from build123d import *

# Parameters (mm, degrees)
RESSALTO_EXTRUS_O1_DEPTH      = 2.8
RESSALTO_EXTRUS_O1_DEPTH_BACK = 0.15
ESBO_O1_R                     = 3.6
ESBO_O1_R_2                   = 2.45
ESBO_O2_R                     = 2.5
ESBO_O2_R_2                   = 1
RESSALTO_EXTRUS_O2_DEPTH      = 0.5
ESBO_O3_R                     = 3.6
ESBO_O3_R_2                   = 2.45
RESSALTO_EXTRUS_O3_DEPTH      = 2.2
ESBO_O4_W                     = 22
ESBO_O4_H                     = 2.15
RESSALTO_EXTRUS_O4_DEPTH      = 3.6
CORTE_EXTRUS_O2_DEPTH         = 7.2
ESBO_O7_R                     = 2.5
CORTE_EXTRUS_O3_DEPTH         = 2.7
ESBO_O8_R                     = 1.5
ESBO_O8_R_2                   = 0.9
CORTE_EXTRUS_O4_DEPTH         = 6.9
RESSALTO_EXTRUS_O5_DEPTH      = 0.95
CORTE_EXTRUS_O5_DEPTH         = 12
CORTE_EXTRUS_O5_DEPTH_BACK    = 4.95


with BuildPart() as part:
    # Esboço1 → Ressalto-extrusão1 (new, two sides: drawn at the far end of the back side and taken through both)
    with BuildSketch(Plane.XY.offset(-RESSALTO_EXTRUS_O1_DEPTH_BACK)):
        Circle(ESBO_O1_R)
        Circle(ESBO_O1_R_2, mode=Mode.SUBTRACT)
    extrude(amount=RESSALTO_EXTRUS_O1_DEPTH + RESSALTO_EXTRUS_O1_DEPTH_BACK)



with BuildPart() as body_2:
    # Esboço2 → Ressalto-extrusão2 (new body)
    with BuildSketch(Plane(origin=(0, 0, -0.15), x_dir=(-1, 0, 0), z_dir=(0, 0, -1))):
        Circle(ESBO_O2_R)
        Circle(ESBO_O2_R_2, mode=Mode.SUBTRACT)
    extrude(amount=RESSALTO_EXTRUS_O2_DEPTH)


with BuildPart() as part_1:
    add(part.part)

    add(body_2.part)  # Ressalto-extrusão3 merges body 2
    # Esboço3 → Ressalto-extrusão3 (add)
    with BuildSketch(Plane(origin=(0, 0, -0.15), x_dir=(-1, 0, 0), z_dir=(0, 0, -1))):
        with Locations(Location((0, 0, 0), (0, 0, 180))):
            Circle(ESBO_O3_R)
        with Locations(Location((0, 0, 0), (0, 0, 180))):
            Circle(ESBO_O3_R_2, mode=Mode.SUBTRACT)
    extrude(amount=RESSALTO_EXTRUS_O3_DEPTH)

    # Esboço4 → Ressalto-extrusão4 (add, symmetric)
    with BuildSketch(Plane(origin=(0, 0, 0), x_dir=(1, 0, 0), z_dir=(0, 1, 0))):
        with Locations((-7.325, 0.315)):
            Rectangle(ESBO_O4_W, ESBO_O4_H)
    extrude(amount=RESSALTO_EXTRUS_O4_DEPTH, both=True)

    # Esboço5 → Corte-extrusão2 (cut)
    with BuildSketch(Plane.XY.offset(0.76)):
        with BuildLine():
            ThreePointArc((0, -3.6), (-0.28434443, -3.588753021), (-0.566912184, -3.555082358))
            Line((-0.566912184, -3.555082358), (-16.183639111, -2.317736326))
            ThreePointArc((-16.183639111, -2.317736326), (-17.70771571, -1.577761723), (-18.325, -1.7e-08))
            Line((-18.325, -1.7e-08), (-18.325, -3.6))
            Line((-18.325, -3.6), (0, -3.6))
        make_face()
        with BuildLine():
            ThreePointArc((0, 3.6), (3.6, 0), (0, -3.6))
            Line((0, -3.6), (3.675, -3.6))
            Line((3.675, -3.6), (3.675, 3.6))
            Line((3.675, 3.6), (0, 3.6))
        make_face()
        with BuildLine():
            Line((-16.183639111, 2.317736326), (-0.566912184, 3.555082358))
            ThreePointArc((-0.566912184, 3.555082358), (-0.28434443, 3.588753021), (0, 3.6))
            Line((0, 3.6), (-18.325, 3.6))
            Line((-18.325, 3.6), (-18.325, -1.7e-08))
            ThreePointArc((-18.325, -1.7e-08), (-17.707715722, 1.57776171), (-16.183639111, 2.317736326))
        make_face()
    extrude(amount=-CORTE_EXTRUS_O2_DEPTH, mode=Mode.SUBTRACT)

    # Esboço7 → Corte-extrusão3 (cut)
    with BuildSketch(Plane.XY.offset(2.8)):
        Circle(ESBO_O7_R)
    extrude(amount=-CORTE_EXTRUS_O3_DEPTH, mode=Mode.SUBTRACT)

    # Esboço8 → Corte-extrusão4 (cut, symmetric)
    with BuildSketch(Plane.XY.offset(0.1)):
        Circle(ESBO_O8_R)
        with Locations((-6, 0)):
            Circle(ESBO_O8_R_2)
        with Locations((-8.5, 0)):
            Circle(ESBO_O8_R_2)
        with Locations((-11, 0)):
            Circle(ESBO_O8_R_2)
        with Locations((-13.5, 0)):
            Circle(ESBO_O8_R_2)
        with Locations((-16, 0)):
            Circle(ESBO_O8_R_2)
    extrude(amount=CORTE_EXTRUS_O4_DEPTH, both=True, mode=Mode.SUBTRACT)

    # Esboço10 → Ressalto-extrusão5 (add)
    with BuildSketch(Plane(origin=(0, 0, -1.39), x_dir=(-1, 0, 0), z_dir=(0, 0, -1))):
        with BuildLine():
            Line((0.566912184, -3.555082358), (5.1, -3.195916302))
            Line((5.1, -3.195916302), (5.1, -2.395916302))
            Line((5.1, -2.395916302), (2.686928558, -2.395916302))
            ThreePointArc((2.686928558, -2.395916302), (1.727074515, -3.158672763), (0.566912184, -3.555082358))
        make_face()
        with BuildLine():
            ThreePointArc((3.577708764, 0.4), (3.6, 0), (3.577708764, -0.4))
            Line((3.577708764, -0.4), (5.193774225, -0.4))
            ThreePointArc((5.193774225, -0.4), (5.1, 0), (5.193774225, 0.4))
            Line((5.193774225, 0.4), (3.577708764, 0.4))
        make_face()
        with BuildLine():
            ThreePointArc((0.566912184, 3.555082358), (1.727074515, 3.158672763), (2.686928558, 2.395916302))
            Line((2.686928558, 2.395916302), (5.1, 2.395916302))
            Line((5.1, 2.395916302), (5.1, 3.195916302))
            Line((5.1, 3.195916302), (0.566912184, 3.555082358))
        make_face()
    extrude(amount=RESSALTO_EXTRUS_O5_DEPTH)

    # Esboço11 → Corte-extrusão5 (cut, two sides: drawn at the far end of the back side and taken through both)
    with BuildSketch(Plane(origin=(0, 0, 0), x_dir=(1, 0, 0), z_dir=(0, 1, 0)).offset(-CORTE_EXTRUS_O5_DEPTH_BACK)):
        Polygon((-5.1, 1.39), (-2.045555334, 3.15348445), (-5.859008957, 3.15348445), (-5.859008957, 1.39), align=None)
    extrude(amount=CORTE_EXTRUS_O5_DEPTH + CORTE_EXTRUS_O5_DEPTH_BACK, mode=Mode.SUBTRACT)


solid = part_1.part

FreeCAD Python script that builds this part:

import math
import FreeCAD as App
import Part
import Sketcher

V = App.Vector
Q = App.Units.Quantity

doc = App.newDocument("Part")
params = doc.addObject("Spreadsheet::Sheet", "Params")
for row, (alias, value) in enumerate([
    ("sketch1_diameter", "7.2 mm"),
    ("sketch1_diameter2", "4.9 mm"),
    ("pad1_length", "2.8 mm"),
    ("pad1_length2", "0.15 mm"),
    ("sketch2_diameter", "5 mm"),
    ("sketch2_diameter2", "2 mm"),
    ("pad2_length", "0.5 mm"),
    ("sketch3_diameter", "7.2 mm"),
    ("sketch3_diameter2", "4.9 mm"),
    ("pad3_length", "2.2 mm"),
    ("sketch4_width", "22 mm"),
    ("sketch4_height", "2.15 mm"),
    ("pad4_length", "7.2 mm"),
    ("sketch5_radius", "3.6 mm"),
    ("pocket1_length", "7.2 mm"),
    ("sketch6_diameter", "5 mm"),
    ("pocket2_length", "2.7 mm"),
    ("sketch7_diameter", "3 mm"),
    ("sketch7_diameter2", "1.8 mm"),
    ("pocket3_length", "13.8 mm"),
    ("sketch8_radius", "3.6 mm"),
    ("sketch8_radius2", "0.9 mm"),
    ("sketch8_height", "0.8 mm"),
    ("pad5_length", "0.95 mm"),
], start=1):
    params.set(f"A{row}", alias)
    params.set(f"B{row}", "=" + value)
    params.setAlias(f"B{row}", alias)

body = doc.addObject("PartDesign::Body", "Body")

# Sketch on XY plane
sketch1 = body.newObject("Sketcher::SketchObject", "Sketch")
sketch1.AttachmentSupport = (doc.getObject("XY_Plane"), [""])
sketch1.MapMode = "FlatFace"
sketch1.addGeometry(Part.Circle(V(0, 0, 0), V(0, 0, 1), 3.6), False)
sketch1.addGeometry(Part.Circle(V(0, 0, 0), V(0, 0, 1), 2.45), False)
sketch1.addConstraint(Sketcher.Constraint("Coincident", 0, 3, -1, 1))
sketch1.addConstraint(Sketcher.Constraint("Coincident", 1, 3, -1, 1))
sketch1.addConstraint(Sketcher.Constraint("Diameter", 0, Q("7.2 mm")))
sketch1.addConstraint(Sketcher.Constraint("Diameter", 1, Q("4.9 mm")))
sketch1.setExpression("Constraints[2]", "Params.sketch1_diameter")
sketch1.setExpression("Constraints[3]", "Params.sketch1_diameter2")
pad1 = body.newObject("PartDesign::Pad", "Pad")
pad1.Profile = sketch1
pad1.Type = "TwoLengths"
pad1.setExpression("Length", "Params.pad1_length")
pad1.setExpression("Length2", "Params.pad1_length2")
body2 = doc.addObject("PartDesign::Body", "Body001")

# Sketch on XY plane
sketch2 = body2.newObject("Sketcher::SketchObject", "Sketch001")
sketch2.AttachmentSupport = (doc.getObject("XY_Plane001"), [""])
sketch2.MapMode = "FlatFace"
sketch2.AttachmentOffset = App.Placement(V(0, 0, -0.15), App.Rotation())
sketch2.addGeometry(Part.Circle(V(0, 0, 0), V(0, 0, 1), 2.5), False)
sketch2.addGeometry(Part.Circle(V(0, 0, 0), V(0, 0, 1), 1), False)
sketch2.addConstraint(Sketcher.Constraint("Coincident", 0, 3, -1, 1))
sketch2.addConstraint(Sketcher.Constraint("Coincident", 1, 3, -1, 1))
sketch2.addConstraint(Sketcher.Constraint("Diameter", 0, Q("5 mm")))
sketch2.addConstraint(Sketcher.Constraint("Diameter", 1, Q("2 mm")))
sketch2.setExpression("Constraints[2]", "Params.sketch2_diameter")
sketch2.setExpression("Constraints[3]", "Params.sketch2_diameter2")
pad2 = body2.newObject("PartDesign::Pad", "Pad001")
pad2.Profile = sketch2
pad2.setExpression("Length", "Params.pad2_length")
pad2.Reversed = True
doc.recompute()

boolean = body.newObject("PartDesign::Boolean", "Boolean")
boolean.Type = "Fuse"
boolean.addObjects([body2])

# Sketch on XY plane
sketch3 = body.newObject("Sketcher::SketchObject", "Sketch002")
sketch3.AttachmentSupport = (doc.getObject("XY_Plane"), [""])
sketch3.MapMode = "FlatFace"
sketch3.AttachmentOffset = App.Placement(V(0, 0, -0.15), App.Rotation())
sketch3.addGeometry(Part.Circle(V(0, 0, 0), V(0, 0, 1), 3.6), False)
sketch3.addGeometry(Part.Circle(V(0, 0, 0), V(0, 0, 1), 2.45), False)
sketch3.addConstraint(Sketcher.Constraint("Coincident", 0, 3, -1, 1))
sketch3.addConstraint(Sketcher.Constraint("Coincident", 1, 3, -1, 1))
sketch3.addConstraint(Sketcher.Constraint("Diameter", 0, Q("7.2 mm")))
sketch3.addConstraint(Sketcher.Constraint("Diameter", 1, Q("4.9 mm")))
sketch3.setExpression("Constraints[2]", "Params.sketch3_diameter")
sketch3.setExpression("Constraints[3]", "Params.sketch3_diameter2")
pad3 = body.newObject("PartDesign::Pad", "Pad002")
pad3.Profile = sketch3
pad3.setExpression("Length", "Params.pad3_length")
pad3.Reversed = True

# Sketch on XZ plane
sketch4 = body.newObject("Sketcher::SketchObject", "Sketch003")
sketch4.AttachmentSupport = (doc.getObject("XZ_Plane"), [""])
sketch4.MapMode = "FlatFace"
sketch4.addGeometry(Part.LineSegment(V(-18.325, -1.39, 0), V(-18.325, 0.76, 0)), False)
sketch4.addGeometry(Part.LineSegment(V(-18.325, 0.76, 0), V(3.675, 0.76, 0)), False)
sketch4.addGeometry(Part.LineSegment(V(3.675, 0.76, 0), V(3.675, -1.39, 0)), False)
sketch4.addGeometry(Part.LineSegment(V(3.675, -1.39, 0), V(-18.325, -1.39, 0)), False)
sketch4.addConstraint(Sketcher.Constraint("Coincident", 0, 2, 1, 1))
sketch4.addConstraint(Sketcher.Constraint("Coincident", 1, 2, 2, 1))
sketch4.addConstraint(Sketcher.Constraint("Coincident", 2, 2, 3, 1))
sketch4.addConstraint(Sketcher.Constraint("Coincident", 3, 2, 0, 1))
sketch4.addConstraint(Sketcher.Constraint("Vertical", 0))
sketch4.addConstraint(Sketcher.Constraint("Horizontal", 1))
sketch4.addConstraint(Sketcher.Constraint("Vertical", 2))
sketch4.addConstraint(Sketcher.Constraint("Horizontal", 3))
sketch4.addConstraint(Sketcher.Constraint("DistanceX", 1, 1, 1, 2, Q("22 mm")))
sketch4.addConstraint(Sketcher.Constraint("DistanceY", 0, 1, 0, 2, Q("2.15 mm")))
sketch4.addConstraint(Sketcher.Constraint("DistanceY", -1, 1, 0, 2, Q("0.76 mm")))
sketch4.addConstraint(Sketcher.Constraint("DistanceX", 0, 2, -1, 1, Q("18.325 mm")))
sketch4.setExpression("Constraints[8]", "Params.sketch4_width")
sketch4.setExpression("Constraints[9]", "Params.sketch4_height")
pad4 = body.newObject("PartDesign::Pad", "Pad003")
pad4.Profile = sketch4
pad4.setExpression("Length", "Params.pad4_length")
pad4.Midplane = True

# Sketch on XY plane
sketch5 = body.newObject("Sketcher::SketchObject", "Sketch004")
sketch5.AttachmentSupport = (doc.getObject("XY_Plane"), [""])
sketch5.MapMode = "FlatFace"
sketch5.AttachmentOffset = App.Placement(V(0, 0, 0.76), App.Rotation())
sketch5.addGeometry(Part.ArcOfCircle(Part.Circle(V(0, 0, 0), V(0, 0, 1), 3.6), math.radians(-99.060402), math.radians(-90)), False)
sketch5.addGeometry(Part.LineSegment(V(-0.566912, -3.555082, 0), V(-16.183639, -2.317736, 0)), False)
sketch5.addGeometry(Part.ArcOfCircle(Part.Circle(V(-16, 0, 0), V(0, 0, 1), 2.325), math.radians(-180), math.radians(-94.530201)), False)
sketch5.addGeometry(Part.LineSegment(V(-18.325, 0, 0), V(-18.325, -3.6, 0)), False)
sketch5.addGeometry(Part.LineSegment(V(-18.325, -3.6, 0), V(0, -3.6, 0)), False)
sketch5.addGeometry(Part.ArcOfCircle(Part.Circle(V(0, 0, 0), V(0, 0, 1), 3.6), math.radians(-90), math.radians(90)), False)
sketch5.addGeometry(Part.LineSegment(V(0, -3.6, 0), V(3.675, -3.6, 0)), False)
sketch5.addGeometry(Part.LineSegment(V(3.675, -3.6, 0), V(3.675, 3.6, 0)), False)
sketch5.addGeometry(Part.LineSegment(V(3.675, 3.6, 0), V(0, 3.6, 0)), False)
sketch5.addGeometry(Part.LineSegment(V(-16.183639, 2.317736, 0), V(-0.566912, 3.555082, 0)), False)
sketch5.addGeometry(Part.ArcOfCircle(Part.Circle(V(0, 0, 0), V(0, 0, 1), 3.6), math.radians(90), math.radians(99.060402)), False)
sketch5.addGeometry(Part.LineSegment(V(0, 3.6, 0), V(-18.325, 3.6, 0)), False)
sketch5.addGeometry(Part.LineSegment(V(-18.325, 3.6, 0), V(-18.325, 0, 0)), False)
sketch5.addGeometry(Part.ArcOfCircle(Part.Circle(V(-16, 0, 0), V(0, 0, 1), 2.325), math.radians(94.530201), math.radians(180)), False)
sketch5.addConstraint(Sketcher.Constraint("Coincident", 0, 1, 1, 1))
sketch5.addConstraint(Sketcher.Constraint("Tangent", 1, 2, 2, 2))
sketch5.addConstraint(Sketcher.Constraint("Tangent", 2, 1, 3, 1))
sketch5.addConstraint(Sketcher.Constraint("Coincident", 3, 2, 4, 1))
sketch5.addConstraint(Sketcher.Constraint("Tangent", 4, 2, 0, 2))
sketch5.addConstraint(Sketcher.Constraint("Tangent", 5, 1, 6, 1))
sketch5.addConstraint(Sketcher.Constraint("Coincident", 6, 2, 7, 1))
sketch5.addConstraint(Sketcher.Constraint("Coincident", 7, 2, 8, 1))
sketch5.addConstraint(Sketcher.Constraint("Tangent", 8, 2, 5, 2))
sketch5.addConstraint(Sketcher.Constraint("Coincident", 9, 2, 10, 2))
sketch5.addConstraint(Sketcher.Constraint("Tangent", 10, 1, 11, 1))
sketch5.addConstraint(Sketcher.Constraint("Coincident", 11, 2, 12, 1))
sketch5.addConstraint(Sketcher.Constraint("Tangent", 12, 2, 13, 2))
sketch5.addConstraint(Sketcher.Constraint("Tangent", 13, 1, 9, 1))
sketch5.addConstraint(Sketcher.Constraint("Vertical", 3))
sketch5.addConstraint(Sketcher.Constraint("Horizontal", 4))
sketch5.addConstraint(Sketcher.Constraint("Horizontal", 6))
sketch5.addConstraint(Sketcher.Constraint("Vertical", 7))
sketch5.addConstraint(Sketcher.Constraint("Horizontal", 8))
sketch5.addConstraint(Sketcher.Constraint("Horizontal", 11))
sketch5.addConstraint(Sketcher.Constraint("Vertical", 12))
sketch5.addConstraint(Sketcher.Constraint("Coincident", 0, 3, -1, 1))
sketch5.addConstraint(Sketcher.Constraint("Coincident", 5, 3, -1, 1))
sketch5.addConstraint(Sketcher.Constraint("Coincident", 10, 3, -1, 1))
sketch5.addConstraint(Sketcher.Constraint("Coincident", 13, 3, 2, 3))
sketch5.addConstraint(Sketcher.Constraint("Equal", 0, 5))
sketch5.addConstraint(Sketcher.Constraint("Equal", 5, 10))
sketch5.addConstraint(Sketcher.Constraint("Equal", 2, 13))
sketch5.addConstraint(Sketcher.Constraint("Symmetric", 1, 2, 13, 1, -1))
sketch5.addConstraint(Sketcher.Constraint("Radius", 0, Q("3.6 mm")))
sketch5.addConstraint(Sketcher.Constraint("DistanceX", 2, 3, -1, 1, Q("16 mm")))
sketch5.addConstraint(Sketcher.Constraint("Radius", 2, Q("2.325 mm")))
sketch5.addConstraint(Sketcher.Constraint("DistanceX", 6, 1, 6, 2, Q("3.675 mm")))
sketch5.addConstraint(Sketcher.Constraint("Distance", 1, Q("15.665669 mm")))
sketch5.setExpression("Constraints[29]", "Params.sketch5_radius")
pocket1 = body.newObject("PartDesign::Pocket", "Pocket")
pocket1.Profile = sketch5
pocket1.setExpression("Length", "Params.pocket1_length")

# Sketch on XY plane
sketch6 = body.newObject("Sketcher::SketchObject", "Sketch005")
sketch6.AttachmentSupport = (doc.getObject("XY_Plane"), [""])
sketch6.MapMode = "FlatFace"
sketch6.AttachmentOffset = App.Placement(V(0, 0, 2.8), App.Rotation())
sketch6.addGeometry(Part.Circle(V(0, 0, 0), V(0, 0, 1), 2.5), False)
sketch6.addConstraint(Sketcher.Constraint("Coincident", 0, 3, -1, 1))
sketch6.addConstraint(Sketcher.Constraint("Diameter", 0, Q("5 mm")))
sketch6.setExpression("Constraints[1]", "Params.sketch6_diameter")
pocket2 = body.newObject("PartDesign::Pocket", "Pocket001")
pocket2.Profile = sketch6
pocket2.setExpression("Length", "Params.pocket2_length")

# Sketch on XY plane
sketch7 = body.newObject("Sketcher::SketchObject", "Sketch006")
sketch7.AttachmentSupport = (doc.getObject("XY_Plane"), [""])
sketch7.MapMode = "FlatFace"
sketch7.AttachmentOffset = App.Placement(V(0, 0, 0.1), App.Rotation())
sketch7.addGeometry(Part.Circle(V(0, 0, 0), V(0, 0, 1), 1.5), False)
sketch7.addGeometry(Part.Circle(V(-6, 0, 0), V(0, 0, 1), 0.9), False)
sketch7.addGeometry(Part.Circle(V(-8.5, 0, 0), V(0, 0, 1), 0.9), False)
sketch7.addGeometry(Part.Circle(V(-11, 0, 0), V(0, 0, 1), 0.9), False)
sketch7.addGeometry(Part.Circle(V(-13.5, 0, 0), V(0, 0, 1), 0.9), False)
sketch7.addGeometry(Part.Circle(V(-16, 0, 0), V(0, 0, 1), 0.9), False)
sketch7.addConstraint(Sketcher.Constraint("Coincident", 0, 3, -1, 1))
sketch7.addConstraint(Sketcher.Constraint("Equal", 1, 2))
sketch7.addConstraint(Sketcher.Constraint("Equal", 2, 3))
sketch7.addConstraint(Sketcher.Constraint("Equal", 3, 4))
sketch7.addConstraint(Sketcher.Constraint("Equal", 4, 5))
sketch7.addConstraint(Sketcher.Constraint("PointOnObject", 1, 3, -1))
sketch7.addConstraint(Sketcher.Constraint("PointOnObject", 2, 3, -1))
sketch7.addConstraint(Sketcher.Constraint("PointOnObject", 3, 3, -1))
sketch7.addConstraint(Sketcher.Constraint("PointOnObject", 4, 3, -1))
sketch7.addConstraint(Sketcher.Constraint("PointOnObject", 5, 3, -1))
sketch7.addConstraint(Sketcher.Constraint("Diameter", 0, Q("3 mm")))
sketch7.addConstraint(Sketcher.Constraint("Diameter", 1, Q("1.8 mm")))
sketch7.addConstraint(Sketcher.Constraint("DistanceX", 1, 3, -1, 1, Q("6 mm")))
sketch7.addConstraint(Sketcher.Constraint("DistanceX", 3, 3, -1, 1, Q("11 mm")))
sketch7.addConstraint(Sketcher.Constraint("DistanceX", 5, 3, -1, 1, Q("16 mm")))
sketch7.addConstraint(Sketcher.Constraint("DistanceX", 4, 3, 2, 3, Q("5 mm")))
sketch7.addConstraint(Sketcher.Constraint("DistanceX", 2, 3, -1, 1, Q("8.5 mm")))
sketch7.setExpression("Constraints[10]", "Params.sketch7_diameter")
sketch7.setExpression("Constraints[11]", "Params.sketch7_diameter2")
pocket3 = body.newObject("PartDesign::Pocket", "Pocket002")
pocket3.Profile = sketch7
pocket3.setExpression("Length", "Params.pocket3_length")
pocket3.Midplane = True

# Sketch on XY plane
sketch8 = body.newObject("Sketcher::SketchObject", "Sketch007")
sketch8.AttachmentSupport = (doc.getObject("XY_Plane"), [""])
sketch8.MapMode = "FlatFace"
sketch8.AttachmentOffset = App.Placement(V(0, 0, -1.39), App.Rotation())
sketch8.addGeometry(Part.LineSegment(V(-0.566912, -3.555082, 0), V(-5.1, -3.195916, 0)), False)
sketch8.addGeometry(Part.LineSegment(V(-5.1, -3.195916, 0), V(-5.1, -2.395916, 0)), False)
sketch8.addGeometry(Part.LineSegment(V(-5.1, -2.395916, 0), V(-2.686929, -2.395916, 0)), False)
sketch8.addGeometry(Part.ArcOfCircle(Part.Circle(V(0, 0, 0), V(0, 0, 1), 3.6), math.radians(-138.276825), math.radians(-99.060402)), False)
sketch8.addGeometry(Part.ArcOfCircle(Part.Circle(V(0, 0, 0), V(0, 0, 1), 3.6), math.radians(173.62063), math.radians(186.37937)), False)
sketch8.addGeometry(Part.LineSegment(V(-3.577709, -0.4, 0), V(-5.193774, -0.4, 0)), False)
sketch8.addGeometry(Part.ArcOfCircle(Part.Circle(V(-6, 0, 0), V(0, 0, 1), 0.9), math.radians(-26.3878), math.radians(26.3878)), False)
sketch8.addGeometry(Part.LineSegment(V(-5.193774, 0.4, 0), V(-3.577709, 0.4, 0)), False)
sketch8.addGeometry(Part.ArcOfCircle(Part.Circle(V(0, 0, 0), V(0, 0, 1), 3.6), math.radians(99.060402), math.radians(138.276825)), False)
sketch8.addGeometry(Part.LineSegment(V(-2.686929, 2.395916, 0), V(-5.1, 2.395916, 0)), False)
sketch8.addGeometry(Part.LineSegment(V(-5.1, 2.395916, 0), V(-5.1, 3.195916, 0)), False)
sketch8.addGeometry(Part.LineSegment(V(-5.1, 3.195916, 0), V(-0.566912, 3.555082, 0)), False)
sketch8.addConstraint(Sketcher.Constraint("Coincident", 0, 2, 1, 1))
sketch8.addConstraint(Sketcher.Constraint("Coincident", 1, 2, 2, 1))
sketch8.addConstraint(Sketcher.Constraint("Coincident", 2, 2, 3, 1))
sketch8.addConstraint(Sketcher.Constraint("Coincident", 3, 2, 0, 1))
sketch8.addConstraint(Sketcher.Constraint("Coincident", 4, 2, 5, 1))
sketch8.addConstraint(Sketcher.Constraint("Coincident", 5, 2, 6, 1))
sketch8.addConstraint(Sketcher.Constraint("Coincident", 6, 2, 7, 1))
sketch8.addConstraint(Sketcher.Constraint("Coincident", 7, 2, 4, 1))
sketch8.addConstraint(Sketcher.Constraint("Coincident", 8, 2, 9, 1))
sketch8.addConstraint(Sketcher.Constraint("Coincident", 9, 2, 10, 1))
sketch8.addConstraint(Sketcher.Constraint("Coincident", 10, 2, 11, 1))
sketch8.addConstraint(Sketcher.Constraint("Coincident", 11, 2, 8, 1))
sketch8.addConstraint(Sketcher.Constraint("Vertical", 1))
sketch8.addConstraint(Sketcher.Constraint("Horizontal", 2))
sketch8.addConstraint(Sketcher.Constraint("Horizontal", 5))
sketch8.addConstraint(Sketcher.Constraint("Horizontal", 7))
sketch8.addConstraint(Sketcher.Constraint("Horizontal", 9))
sketch8.addConstraint(Sketcher.Constraint("Vertical", 10))
sketch8.addConstraint(Sketcher.Constraint("Coincident", 3, 3, -1, 1))
sketch8.addConstraint(Sketcher.Constraint("Coincident", 4, 3, -1, 1))
sketch8.addConstraint(Sketcher.Constraint("Coincident", 8, 3, -1, 1))
sketch8.addConstraint(Sketcher.Constraint("Equal", 3, 4))
sketch8.addConstraint(Sketcher.Constraint("Equal", 4, 8))
sketch8.addConstraint(Sketcher.Constraint("Symmetric", 5, 2, 6, 2, -1))
sketch8.addConstraint(Sketcher.Constraint("Symmetric", 1, 2, 9, 2, -1))
sketch8.addConstraint(Sketcher.Constraint("Vertical", 3, 2, 11, 2))
sketch8.addConstraint(Sketcher.Constraint("Equal", 1, 10))
sketch8.addConstraint(Sketcher.Constraint("Radius", 3, Q("3.6 mm")))
sketch8.addConstraint(Sketcher.Constraint("Radius", 6, Q("0.9 mm")))
sketch8.addConstraint(Sketcher.Constraint("DistanceY", 1, 1, 1, 2, Q("0.8 mm")))
sketch8.addConstraint(Sketcher.Constraint("DistanceX", 6, 3, -1, 1, Q("6 mm")))
sketch8.addConstraint(Sketcher.Constraint("DistanceX", 0, 2, -1, 1, Q("5.1 mm")))
sketch8.addConstraint(Sketcher.Constraint("DistanceY", 4, 2, -1, 1, Q("0.4 mm")))
sketch8.addConstraint(Sketcher.Constraint("DistanceX", 2, 1, 2, 2, Q("2.413071 mm")))
sketch8.addConstraint(Sketcher.Constraint("Distance", 0, Q("4.547294 mm")))
sketch8.setExpression("Constraints[27]", "Params.sketch8_radius")
sketch8.setExpression("Constraints[28]", "Params.sketch8_radius2")
sketch8.setExpression("Constraints[29]", "Params.sketch8_height")
pad5 = body.newObject("PartDesign::Pad", "Pad004")
pad5.Profile = sketch8
pad5.setExpression("Length", "Params.pad5_length")
pad5.Reversed = True

# Sketch on XZ plane
sketch9 = body.newObject("Sketcher::SketchObject", "Sketch008")
sketch9.AttachmentSupport = (doc.getObject("XZ_Plane"), [""])
sketch9.MapMode = "FlatFace"
sketch9.addGeometry(Part.LineSegment(V(-5.1, -1.39, 0), V(-2.045555, -3.153484, 0)), False)
sketch9.addGeometry(Part.LineSegment(V(-2.045555, -3.153484, 0), V(-5.859009, -3.153484, 0)), False)
sketch9.addGeometry(Part.LineSegment(V(-5.859009, -3.153484, 0), V(-5.859009, -1.39, 0)), False)
sketch9.addGeometry(Part.LineSegment(V(-5.859009, -1.39, 0), V(-5.1, -1.39, 0)), False)
sketch9.addConstraint(Sketcher.Constraint("Coincident", 0, 2, 1, 1))
sketch9.addConstraint(Sketcher.Constraint("Coincident", 1, 2, 2, 1))
sketch9.addConstraint(Sketcher.Constraint("Coincident", 2, 2, 3, 1))
sketch9.addConstraint(Sketcher.Constraint("Coincident", 3, 2, 0, 1))
sketch9.addConstraint(Sketcher.Constraint("Horizontal", 1))
sketch9.addConstraint(Sketcher.Constraint("Vertical", 2))
sketch9.addConstraint(Sketcher.Constraint("Horizontal", 3))
sketch9.addConstraint(Sketcher.Constraint("Angle", 0, Q("-30 deg")))
sketch9.addConstraint(Sketcher.Constraint("DistanceX", 3, 2, -1, 1, Q("5.1 mm")))
sketch9.addConstraint(Sketcher.Constraint("DistanceY", 2, 2, -1, 1, Q("1.39 mm")))
sketch9.addConstraint(Sketcher.Constraint("DistanceX", 3, 1, 3, 2, Q("0.759009 mm")))
sketch9.addConstraint(Sketcher.Constraint("Distance", 0, Q("3.526969 mm")))
pocket4 = body.newObject("PartDesign::Pocket", "Pocket003")
pocket4.Profile = sketch9
pocket4.Type = "ThroughAll"
pocket4.Midplane = True

doc.recompute()
